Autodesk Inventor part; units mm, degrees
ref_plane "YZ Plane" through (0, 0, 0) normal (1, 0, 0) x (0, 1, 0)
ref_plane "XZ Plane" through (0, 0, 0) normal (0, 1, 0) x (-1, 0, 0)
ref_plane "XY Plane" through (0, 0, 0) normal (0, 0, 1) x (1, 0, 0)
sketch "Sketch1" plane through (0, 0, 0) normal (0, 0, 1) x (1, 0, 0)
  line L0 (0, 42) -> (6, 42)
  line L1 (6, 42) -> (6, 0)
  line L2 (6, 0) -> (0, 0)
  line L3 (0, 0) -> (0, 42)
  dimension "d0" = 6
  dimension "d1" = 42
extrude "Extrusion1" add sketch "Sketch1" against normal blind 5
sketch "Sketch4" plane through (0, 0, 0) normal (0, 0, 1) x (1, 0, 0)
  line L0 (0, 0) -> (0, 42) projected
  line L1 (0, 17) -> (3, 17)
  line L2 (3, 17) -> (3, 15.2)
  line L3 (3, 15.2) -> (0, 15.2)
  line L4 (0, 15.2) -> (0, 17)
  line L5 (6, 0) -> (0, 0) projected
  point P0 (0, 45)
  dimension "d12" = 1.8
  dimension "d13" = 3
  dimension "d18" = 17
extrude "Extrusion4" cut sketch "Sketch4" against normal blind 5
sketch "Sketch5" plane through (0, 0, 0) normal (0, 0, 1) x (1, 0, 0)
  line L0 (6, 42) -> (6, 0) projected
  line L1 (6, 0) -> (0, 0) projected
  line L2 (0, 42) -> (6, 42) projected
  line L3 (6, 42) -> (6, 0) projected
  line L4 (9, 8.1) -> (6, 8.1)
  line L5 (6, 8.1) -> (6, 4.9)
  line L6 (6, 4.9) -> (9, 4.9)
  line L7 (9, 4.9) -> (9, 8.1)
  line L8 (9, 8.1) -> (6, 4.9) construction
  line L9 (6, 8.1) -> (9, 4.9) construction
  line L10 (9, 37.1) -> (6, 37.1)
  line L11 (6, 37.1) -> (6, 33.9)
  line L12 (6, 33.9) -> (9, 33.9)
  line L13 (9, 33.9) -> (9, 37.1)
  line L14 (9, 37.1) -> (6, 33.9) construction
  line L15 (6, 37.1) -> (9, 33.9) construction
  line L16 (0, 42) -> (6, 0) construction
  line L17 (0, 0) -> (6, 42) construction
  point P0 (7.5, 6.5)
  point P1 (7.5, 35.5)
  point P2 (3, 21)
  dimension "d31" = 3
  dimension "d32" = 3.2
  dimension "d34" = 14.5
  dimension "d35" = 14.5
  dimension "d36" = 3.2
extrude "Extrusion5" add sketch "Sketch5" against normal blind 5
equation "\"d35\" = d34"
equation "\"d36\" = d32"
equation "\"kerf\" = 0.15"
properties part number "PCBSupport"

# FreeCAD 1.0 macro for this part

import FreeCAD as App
import Part
import Sketcher


def add_polygon(sketch, points):
    """Adds a closed chain of lines whose ends are joined by coincident constraints."""
    first, n = sketch.GeometryCount, len(points)
    for a, b in zip(points, points[1:] + points[:1]):
        sketch.addGeometry(Part.LineSegment(App.Vector(*a, 0), App.Vector(*b, 0)), False)
    for i in range(n):
        sketch.addConstraint(Sketcher.Constraint("Coincident", first + i, 2, first + (i + 1) % n, 1))

doc = App.newDocument("Part")
params = doc.addObject("Spreadsheet::Sheet", "Params")
for row, (alias, value) in enumerate([
    ("sketch1_width", "6 mm"),
    ("sketch1_height", "42 mm"),
    ("pad1_length", "5 mm"),
    ("sketch2_width", "3 mm"),
    ("sketch2_height", "1.8 mm"),
    ("pocket1_length", "5 mm"),
    ("sketch3_width", "3 mm"),
    ("sketch3_height", "3.2 mm"),
    ("pad2_length", "5 mm"),
], start=1):
    params.set(f"A{row}", alias)
    params.set(f"B{row}", "=" + value)
    params.setAlias(f"B{row}", alias)

body = doc.addObject("PartDesign::Body", "Body")

# Sketch on XY plane
sketch1 = body.newObject("Sketcher::SketchObject", "Sketch")
sketch1.AttachmentSupport = (doc.getObject("XY_Plane"), [""])
sketch1.MapMode = "FlatFace"
add_polygon(sketch1, [(6, 42), (0, 42), (0, 0), (6, 0)])  # lines 0-3
sketch1.addConstraint([
    Sketcher.Constraint("Horizontal", 0),
    Sketcher.Constraint("Vertical", 1),
    Sketcher.Constraint("Horizontal", 2),
    Sketcher.Constraint("Vertical", 3),
    Sketcher.Constraint("Coincident", 1, 2, -1, 1),
    Sketcher.Constraint("DistanceX", 0, 2, 0, 1, 6.0),
    Sketcher.Constraint("DistanceY", 1, 2, 1, 1, 42.0),
])
sketch1.setExpression("Constraints[9]", "Params.sketch1_width")
sketch1.setExpression("Constraints[10]", "Params.sketch1_height")
pad1 = body.newObject("PartDesign::Pad", "Pad")
pad1.Profile = sketch1
pad1.setExpression("Length", "Params.pad1_length")
pad1.Reversed = True

# Sketch on XY plane
sketch2 = body.newObject("Sketcher::SketchObject", "Sketch001")
sketch2.AttachmentSupport = (doc.getObject("XY_Plane"), [""])
sketch2.MapMode = "FlatFace"
add_polygon(sketch2, [(0, 17), (0, 15.2), (3, 15.2), (3, 17)])  # lines 0-3
sketch2.addConstraint([
    Sketcher.Constraint("Vertical", 0),
    Sketcher.Constraint("Horizontal", 1),
    Sketcher.Constraint("Vertical", 2),
    Sketcher.Constraint("Horizontal", 3),
    Sketcher.Constraint("PointOnObject", 0, 2, -2),
    Sketcher.Constraint("DistanceX", 1, 1, 1, 2, 3.0),
    Sketcher.Constraint("DistanceY", 0, 2, 0, 1, 1.8),
    Sketcher.Constraint("DistanceY", -1, 1, 2, 2, 17.0),
])
sketch2.setExpression("Constraints[9]", "Params.sketch2_width")
sketch2.setExpression("Constraints[10]", "Params.sketch2_height")
pocket1 = body.newObject("PartDesign::Pocket", "Pocket")
pocket1.Profile = sketch2
pocket1.setExpression("Length", "Params.pocket1_length")

# Sketch on XY plane
sketch3 = body.newObject("Sketcher::SketchObject", "Sketch002")
sketch3.AttachmentSupport = (doc.getObject("XY_Plane"), [""])
sketch3.MapMode = "FlatFace"
add_polygon(sketch3, [(9, 37.1), (6, 37.1), (6, 33.9), (9, 33.9)])  # lines 0-3
add_polygon(sketch3, [(9, 8.1), (6, 8.1), (6, 4.9), (9, 4.9)])  # lines 4-7
sketch3.addConstraint([
    Sketcher.Constraint("Horizontal", 0),
    Sketcher.Constraint("Vertical", 1),
    Sketcher.Constraint("Horizontal", 2),
    Sketcher.Constraint("Vertical", 3),
    Sketcher.Constraint("Horizontal", 4),
    Sketcher.Constraint("Vertical", 5),
    Sketcher.Constraint("Horizontal", 6),
    Sketcher.Constraint("Vertical", 7),
    Sketcher.Constraint("Vertical", 1, 2, 4, 2),
    Sketcher.Constraint("Vertical", 3, 2, 6, 2),
    Sketcher.Constraint("Equal", 3, 5),
    Sketcher.Constraint("DistanceX", 0, 2, 0, 1, 3.0),
    Sketcher.Constraint("DistanceY", 1, 2, 1, 1, 3.2),
    Sketcher.Constraint("DistanceX", -1, 1, 0, 2, 6.0),
    Sketcher.Constraint("DistanceY", 4, 2, 0, 2, 29.0),
    Sketcher.Constraint("DistanceY", -1, 1, 0, 2, 37.1),
])
sketch3.setExpression("Constraints[19]", "Params.sketch3_width")
sketch3.setExpression("Constraints[20]", "Params.sketch3_height")
pad2 = body.newObject("PartDesign::Pad", "Pad001")
pad2.Profile = sketch3
pad2.setExpression("Length", "Params.pad2_length")
pad2.Reversed = True

doc.recompute()
